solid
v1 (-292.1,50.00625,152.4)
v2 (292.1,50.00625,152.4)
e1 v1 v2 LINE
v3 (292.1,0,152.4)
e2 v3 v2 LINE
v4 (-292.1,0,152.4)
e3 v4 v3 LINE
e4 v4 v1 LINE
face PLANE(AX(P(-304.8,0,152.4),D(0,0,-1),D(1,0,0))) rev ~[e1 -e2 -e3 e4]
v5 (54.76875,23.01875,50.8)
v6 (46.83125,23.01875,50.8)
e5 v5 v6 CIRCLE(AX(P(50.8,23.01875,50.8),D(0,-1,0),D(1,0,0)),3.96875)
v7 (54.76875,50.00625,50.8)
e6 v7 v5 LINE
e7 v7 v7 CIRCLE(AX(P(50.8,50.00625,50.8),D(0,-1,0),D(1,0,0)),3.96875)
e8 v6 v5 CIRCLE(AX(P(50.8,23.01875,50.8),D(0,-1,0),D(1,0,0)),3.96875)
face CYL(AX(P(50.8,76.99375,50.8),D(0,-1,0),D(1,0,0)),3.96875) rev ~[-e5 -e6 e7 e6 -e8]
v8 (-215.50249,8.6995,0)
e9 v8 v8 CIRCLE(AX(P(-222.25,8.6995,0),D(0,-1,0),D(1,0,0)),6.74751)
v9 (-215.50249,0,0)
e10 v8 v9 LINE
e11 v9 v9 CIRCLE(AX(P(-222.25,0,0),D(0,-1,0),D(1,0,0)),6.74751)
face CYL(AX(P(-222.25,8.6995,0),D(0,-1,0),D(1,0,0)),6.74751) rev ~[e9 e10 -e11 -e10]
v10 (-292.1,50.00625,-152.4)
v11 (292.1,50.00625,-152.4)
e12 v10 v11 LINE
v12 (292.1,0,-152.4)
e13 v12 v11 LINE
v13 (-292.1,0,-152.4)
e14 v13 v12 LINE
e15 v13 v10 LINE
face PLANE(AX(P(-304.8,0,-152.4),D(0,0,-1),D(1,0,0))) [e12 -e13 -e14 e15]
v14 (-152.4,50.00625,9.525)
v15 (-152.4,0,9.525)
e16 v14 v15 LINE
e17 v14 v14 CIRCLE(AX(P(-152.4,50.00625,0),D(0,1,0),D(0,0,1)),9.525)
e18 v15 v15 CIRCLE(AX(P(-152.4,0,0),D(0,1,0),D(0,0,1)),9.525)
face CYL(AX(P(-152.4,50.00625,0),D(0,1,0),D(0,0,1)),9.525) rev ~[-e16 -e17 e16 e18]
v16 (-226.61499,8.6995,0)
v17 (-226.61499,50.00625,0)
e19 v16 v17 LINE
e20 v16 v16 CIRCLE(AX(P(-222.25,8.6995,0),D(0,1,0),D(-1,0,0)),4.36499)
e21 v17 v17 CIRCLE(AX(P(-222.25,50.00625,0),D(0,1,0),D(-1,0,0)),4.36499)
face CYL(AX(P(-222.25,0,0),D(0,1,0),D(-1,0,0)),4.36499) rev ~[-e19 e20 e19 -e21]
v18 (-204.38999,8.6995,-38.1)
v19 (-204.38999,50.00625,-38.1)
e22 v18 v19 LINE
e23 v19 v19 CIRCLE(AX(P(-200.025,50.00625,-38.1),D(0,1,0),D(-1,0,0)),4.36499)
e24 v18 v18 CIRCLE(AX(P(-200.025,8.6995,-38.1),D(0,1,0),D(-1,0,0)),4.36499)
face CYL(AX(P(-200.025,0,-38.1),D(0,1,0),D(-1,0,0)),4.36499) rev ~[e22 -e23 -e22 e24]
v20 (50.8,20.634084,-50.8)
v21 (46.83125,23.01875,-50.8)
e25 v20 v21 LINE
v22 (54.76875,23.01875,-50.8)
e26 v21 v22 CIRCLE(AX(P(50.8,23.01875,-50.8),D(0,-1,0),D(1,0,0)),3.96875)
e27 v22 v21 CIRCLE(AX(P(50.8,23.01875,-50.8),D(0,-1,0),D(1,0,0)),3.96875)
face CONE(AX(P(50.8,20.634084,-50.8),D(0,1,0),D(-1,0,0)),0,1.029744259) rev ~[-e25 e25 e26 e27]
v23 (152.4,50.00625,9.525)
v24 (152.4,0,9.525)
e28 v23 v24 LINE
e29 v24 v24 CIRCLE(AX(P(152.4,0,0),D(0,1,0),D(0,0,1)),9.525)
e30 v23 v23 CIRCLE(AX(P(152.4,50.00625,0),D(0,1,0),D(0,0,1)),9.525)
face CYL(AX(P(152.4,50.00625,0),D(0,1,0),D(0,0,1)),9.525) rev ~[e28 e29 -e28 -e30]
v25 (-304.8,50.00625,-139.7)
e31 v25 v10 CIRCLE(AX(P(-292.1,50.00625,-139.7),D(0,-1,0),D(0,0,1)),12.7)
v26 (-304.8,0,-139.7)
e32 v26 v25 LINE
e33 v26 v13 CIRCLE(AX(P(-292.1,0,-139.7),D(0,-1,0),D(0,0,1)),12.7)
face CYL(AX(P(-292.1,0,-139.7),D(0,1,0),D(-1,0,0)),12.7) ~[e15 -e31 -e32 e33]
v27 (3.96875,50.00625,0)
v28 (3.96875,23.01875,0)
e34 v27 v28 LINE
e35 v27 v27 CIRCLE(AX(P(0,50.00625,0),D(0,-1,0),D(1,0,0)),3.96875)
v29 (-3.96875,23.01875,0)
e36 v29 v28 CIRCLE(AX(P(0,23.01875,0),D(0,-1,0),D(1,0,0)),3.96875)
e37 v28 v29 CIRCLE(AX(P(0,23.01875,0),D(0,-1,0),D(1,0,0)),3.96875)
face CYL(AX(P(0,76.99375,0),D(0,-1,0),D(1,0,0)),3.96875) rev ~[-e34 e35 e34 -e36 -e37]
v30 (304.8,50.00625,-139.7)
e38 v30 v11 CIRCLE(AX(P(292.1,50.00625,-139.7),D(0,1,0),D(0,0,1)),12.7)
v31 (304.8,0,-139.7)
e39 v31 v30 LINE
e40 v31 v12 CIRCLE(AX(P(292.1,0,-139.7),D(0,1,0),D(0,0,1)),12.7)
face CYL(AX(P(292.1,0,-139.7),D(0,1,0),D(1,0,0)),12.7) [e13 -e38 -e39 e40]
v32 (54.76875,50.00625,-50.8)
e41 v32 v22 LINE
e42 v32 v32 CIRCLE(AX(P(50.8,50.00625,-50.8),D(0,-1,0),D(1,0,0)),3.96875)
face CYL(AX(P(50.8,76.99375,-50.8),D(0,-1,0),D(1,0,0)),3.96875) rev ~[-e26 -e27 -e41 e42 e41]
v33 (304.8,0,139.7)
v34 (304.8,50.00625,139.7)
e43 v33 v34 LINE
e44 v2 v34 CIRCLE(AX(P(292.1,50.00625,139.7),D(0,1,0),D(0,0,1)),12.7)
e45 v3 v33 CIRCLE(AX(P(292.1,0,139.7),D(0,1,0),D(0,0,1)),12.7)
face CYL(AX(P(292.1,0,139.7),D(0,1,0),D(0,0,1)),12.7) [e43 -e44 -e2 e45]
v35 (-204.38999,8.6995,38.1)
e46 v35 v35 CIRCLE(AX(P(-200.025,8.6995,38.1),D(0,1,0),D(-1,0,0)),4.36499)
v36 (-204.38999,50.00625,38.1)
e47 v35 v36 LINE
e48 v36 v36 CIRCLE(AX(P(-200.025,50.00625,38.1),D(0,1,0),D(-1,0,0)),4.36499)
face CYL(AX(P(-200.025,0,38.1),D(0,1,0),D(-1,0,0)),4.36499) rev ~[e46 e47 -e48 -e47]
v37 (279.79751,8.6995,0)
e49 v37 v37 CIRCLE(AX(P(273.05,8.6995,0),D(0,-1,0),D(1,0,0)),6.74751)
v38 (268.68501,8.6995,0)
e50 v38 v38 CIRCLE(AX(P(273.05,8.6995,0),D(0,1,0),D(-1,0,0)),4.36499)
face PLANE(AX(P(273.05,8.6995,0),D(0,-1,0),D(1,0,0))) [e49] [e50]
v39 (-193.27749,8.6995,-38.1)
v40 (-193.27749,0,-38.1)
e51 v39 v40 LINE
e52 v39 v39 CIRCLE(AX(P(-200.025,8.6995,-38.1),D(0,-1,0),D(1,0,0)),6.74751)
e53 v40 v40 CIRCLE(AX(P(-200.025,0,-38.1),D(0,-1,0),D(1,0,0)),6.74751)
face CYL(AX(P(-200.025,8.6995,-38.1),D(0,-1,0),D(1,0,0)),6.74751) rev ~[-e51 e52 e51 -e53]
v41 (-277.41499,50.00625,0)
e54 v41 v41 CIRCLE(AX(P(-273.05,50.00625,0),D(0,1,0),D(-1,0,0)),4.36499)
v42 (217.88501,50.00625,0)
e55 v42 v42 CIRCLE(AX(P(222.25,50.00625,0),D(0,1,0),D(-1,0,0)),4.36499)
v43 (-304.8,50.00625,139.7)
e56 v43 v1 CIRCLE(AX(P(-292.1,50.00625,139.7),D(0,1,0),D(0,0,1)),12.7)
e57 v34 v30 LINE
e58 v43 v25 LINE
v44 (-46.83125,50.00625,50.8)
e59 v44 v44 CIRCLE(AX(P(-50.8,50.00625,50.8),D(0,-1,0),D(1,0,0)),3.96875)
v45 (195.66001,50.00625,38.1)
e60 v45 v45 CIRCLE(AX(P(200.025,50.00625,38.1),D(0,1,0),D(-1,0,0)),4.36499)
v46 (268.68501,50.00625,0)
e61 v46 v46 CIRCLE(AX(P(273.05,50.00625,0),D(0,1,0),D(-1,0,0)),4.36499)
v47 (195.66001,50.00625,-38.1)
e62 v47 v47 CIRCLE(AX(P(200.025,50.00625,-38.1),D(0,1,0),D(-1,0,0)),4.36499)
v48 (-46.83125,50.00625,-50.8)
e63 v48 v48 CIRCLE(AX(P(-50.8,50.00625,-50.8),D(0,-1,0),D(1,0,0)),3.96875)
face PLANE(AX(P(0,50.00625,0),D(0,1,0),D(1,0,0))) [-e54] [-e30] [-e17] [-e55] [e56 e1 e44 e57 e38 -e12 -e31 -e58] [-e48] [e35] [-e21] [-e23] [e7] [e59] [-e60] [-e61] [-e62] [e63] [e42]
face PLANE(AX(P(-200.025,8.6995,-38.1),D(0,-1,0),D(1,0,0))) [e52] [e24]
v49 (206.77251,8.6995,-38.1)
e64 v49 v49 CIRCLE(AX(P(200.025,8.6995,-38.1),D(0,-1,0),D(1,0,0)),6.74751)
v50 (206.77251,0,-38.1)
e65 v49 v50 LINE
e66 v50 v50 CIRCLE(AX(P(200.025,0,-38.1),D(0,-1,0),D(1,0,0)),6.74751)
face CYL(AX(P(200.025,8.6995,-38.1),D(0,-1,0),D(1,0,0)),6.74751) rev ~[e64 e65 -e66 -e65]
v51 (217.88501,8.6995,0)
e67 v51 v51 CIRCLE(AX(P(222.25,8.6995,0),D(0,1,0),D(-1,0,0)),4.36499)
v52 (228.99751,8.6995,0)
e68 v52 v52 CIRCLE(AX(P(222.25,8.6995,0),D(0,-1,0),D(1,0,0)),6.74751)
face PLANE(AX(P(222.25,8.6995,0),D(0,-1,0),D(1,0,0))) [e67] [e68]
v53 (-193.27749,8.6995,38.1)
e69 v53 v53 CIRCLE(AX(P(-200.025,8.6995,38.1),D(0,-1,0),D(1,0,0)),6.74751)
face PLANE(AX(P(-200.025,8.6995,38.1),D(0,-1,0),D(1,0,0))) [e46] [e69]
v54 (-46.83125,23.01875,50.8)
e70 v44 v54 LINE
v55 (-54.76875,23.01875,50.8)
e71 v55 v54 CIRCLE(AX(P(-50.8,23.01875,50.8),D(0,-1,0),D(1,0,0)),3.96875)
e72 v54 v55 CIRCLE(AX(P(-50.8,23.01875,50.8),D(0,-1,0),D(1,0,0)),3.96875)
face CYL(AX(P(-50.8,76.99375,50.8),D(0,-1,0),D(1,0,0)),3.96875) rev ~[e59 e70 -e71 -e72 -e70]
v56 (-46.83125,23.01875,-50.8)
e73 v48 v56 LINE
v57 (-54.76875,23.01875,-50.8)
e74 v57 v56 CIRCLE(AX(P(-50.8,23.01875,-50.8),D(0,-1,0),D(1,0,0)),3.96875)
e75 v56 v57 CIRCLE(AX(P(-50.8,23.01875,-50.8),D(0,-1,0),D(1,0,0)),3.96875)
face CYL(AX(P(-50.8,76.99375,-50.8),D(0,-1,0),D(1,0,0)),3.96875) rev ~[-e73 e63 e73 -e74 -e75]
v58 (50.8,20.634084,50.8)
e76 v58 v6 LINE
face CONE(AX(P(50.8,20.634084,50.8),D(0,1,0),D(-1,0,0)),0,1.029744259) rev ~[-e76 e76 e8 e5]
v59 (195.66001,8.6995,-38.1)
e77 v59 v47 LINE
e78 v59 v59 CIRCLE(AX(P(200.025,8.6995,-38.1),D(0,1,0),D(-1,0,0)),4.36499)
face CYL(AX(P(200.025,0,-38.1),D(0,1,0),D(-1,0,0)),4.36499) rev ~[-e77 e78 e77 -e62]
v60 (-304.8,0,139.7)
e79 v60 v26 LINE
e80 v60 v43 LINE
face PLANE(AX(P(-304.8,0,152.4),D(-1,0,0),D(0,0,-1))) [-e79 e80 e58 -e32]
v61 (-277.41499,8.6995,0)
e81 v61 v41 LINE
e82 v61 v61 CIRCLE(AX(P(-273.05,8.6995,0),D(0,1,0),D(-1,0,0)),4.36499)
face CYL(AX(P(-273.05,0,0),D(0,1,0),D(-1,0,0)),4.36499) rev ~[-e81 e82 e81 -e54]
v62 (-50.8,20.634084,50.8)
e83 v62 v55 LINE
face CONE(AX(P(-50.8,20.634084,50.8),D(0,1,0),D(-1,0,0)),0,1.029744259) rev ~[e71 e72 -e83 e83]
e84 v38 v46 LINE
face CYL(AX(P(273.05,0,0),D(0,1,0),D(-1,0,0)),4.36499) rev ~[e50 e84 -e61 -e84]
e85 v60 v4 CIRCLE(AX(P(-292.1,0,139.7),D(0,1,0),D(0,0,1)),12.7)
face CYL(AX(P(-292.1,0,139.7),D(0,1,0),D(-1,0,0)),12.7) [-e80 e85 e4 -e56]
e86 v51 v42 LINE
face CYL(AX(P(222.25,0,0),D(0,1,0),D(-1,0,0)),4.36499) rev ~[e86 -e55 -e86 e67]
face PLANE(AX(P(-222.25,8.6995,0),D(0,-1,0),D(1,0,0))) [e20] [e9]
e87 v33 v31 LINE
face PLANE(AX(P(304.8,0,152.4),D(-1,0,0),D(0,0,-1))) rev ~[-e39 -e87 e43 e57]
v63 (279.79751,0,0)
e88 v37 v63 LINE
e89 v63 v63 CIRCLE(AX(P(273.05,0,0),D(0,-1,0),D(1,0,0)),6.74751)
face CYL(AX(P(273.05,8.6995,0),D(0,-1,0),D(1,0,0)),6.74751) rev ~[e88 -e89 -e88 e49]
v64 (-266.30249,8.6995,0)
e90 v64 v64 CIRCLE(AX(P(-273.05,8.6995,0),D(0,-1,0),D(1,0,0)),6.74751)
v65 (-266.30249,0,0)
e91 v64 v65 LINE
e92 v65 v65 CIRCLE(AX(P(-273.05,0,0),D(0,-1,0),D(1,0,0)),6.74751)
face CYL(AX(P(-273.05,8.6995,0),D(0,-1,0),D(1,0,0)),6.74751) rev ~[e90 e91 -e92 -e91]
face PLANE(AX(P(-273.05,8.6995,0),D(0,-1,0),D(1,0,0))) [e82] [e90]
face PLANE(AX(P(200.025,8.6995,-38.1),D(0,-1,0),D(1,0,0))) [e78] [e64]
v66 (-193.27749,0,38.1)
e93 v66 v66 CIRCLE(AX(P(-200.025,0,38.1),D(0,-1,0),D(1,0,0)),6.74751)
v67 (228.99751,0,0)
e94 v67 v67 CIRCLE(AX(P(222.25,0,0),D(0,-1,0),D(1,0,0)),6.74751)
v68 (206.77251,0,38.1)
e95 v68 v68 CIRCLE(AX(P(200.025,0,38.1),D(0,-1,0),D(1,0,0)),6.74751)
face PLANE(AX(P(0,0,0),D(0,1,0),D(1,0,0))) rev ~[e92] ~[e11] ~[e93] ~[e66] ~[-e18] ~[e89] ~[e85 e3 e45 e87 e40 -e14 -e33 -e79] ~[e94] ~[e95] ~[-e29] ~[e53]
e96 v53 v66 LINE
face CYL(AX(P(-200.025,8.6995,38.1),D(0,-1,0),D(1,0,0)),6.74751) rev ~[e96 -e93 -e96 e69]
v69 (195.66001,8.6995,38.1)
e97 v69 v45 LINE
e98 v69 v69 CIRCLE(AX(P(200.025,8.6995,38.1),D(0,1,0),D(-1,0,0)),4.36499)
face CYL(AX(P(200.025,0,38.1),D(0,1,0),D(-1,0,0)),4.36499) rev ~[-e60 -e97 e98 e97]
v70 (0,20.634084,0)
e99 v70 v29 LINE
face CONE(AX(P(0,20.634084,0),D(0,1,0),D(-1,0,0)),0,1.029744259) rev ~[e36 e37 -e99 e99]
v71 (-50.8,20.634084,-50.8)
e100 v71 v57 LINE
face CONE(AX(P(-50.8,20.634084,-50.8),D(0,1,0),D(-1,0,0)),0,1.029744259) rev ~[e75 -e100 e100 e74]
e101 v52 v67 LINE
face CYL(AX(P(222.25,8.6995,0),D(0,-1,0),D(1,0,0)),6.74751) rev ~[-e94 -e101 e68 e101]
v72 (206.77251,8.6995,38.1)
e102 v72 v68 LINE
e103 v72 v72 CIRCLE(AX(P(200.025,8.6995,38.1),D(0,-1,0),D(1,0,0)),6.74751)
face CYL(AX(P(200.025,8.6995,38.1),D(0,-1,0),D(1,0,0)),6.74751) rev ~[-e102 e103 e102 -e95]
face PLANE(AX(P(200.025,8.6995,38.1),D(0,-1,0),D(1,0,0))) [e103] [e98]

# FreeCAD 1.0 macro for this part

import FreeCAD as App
import Part
import Sketcher
from FreeCAD import Vector
Q = App.Units.Quantity


def edges_at(feature, points):
    """Names of the edges that pass closest to the given points."""
    edges = feature.Shape.Edges
    near = lambda p: min(range(len(edges)), key=lambda i: edges[i].distToShape(Part.Vertex(*p))[0])
    return sorted({f"Edge{near(p) + 1}" for p in points})

doc = App.newDocument("Part")
body = doc.addObject("PartDesign::Body", "Body")

sketch1 = doc.addObject("Sketcher::SketchObject", "Sketch")
body.addObject(sketch1)
sketch1.AttachmentSupport = (doc.XZ_Plane, [""])
sketch1.MapMode = "FlatFace"
sketch1.addGeometry(Part.LineSegment(Vector(-305, -152, 0), Vector(-305, 152, 0)), False)
sketch1.addGeometry(Part.LineSegment(Vector(-305, 152, 0), Vector(305, 152, 0)), False)
sketch1.addGeometry(Part.LineSegment(Vector(305, 152, 0), Vector(305, -152, 0)), False)
sketch1.addGeometry(Part.LineSegment(Vector(305, -152, 0), Vector(-305, -152, 0)), False)
sketch1.addConstraint(Sketcher.Constraint("Coincident", 0, 2, 1, 1))
sketch1.addConstraint(Sketcher.Constraint("Coincident", 1, 2, 2, 1))
sketch1.addConstraint(Sketcher.Constraint("Coincident", 2, 2, 3, 1))
sketch1.addConstraint(Sketcher.Constraint("Coincident", 3, 2, 0, 1))
sketch1.addConstraint(Sketcher.Constraint("Vertical", 0))
sketch1.addConstraint(Sketcher.Constraint("Horizontal", 1))
sketch1.addConstraint(Sketcher.Constraint("Vertical", 2))
sketch1.addConstraint(Sketcher.Constraint("Horizontal", 3))
sketch1.addConstraint(Sketcher.Constraint("Symmetric", 0, 2, 2, 2, -1, 1))
sketch1.addConstraint(Sketcher.Constraint("DistanceX", 1, 1, 1, 2, Q("24 in")))
sketch1.addConstraint(Sketcher.Constraint("DistanceY", 0, 1, 0, 2, Q("12 in")))
pad1 = doc.addObject("PartDesign::Pad", "Pad")
body.addObject(pad1)
pad1.Profile = sketch1
pad1.Length = Q("1.96875 in")
pad1.Reversed = True
doc.recompute()

fillet = doc.addObject("PartDesign::Fillet", "Fillet")
body.addObject(fillet)
fillet.Base = (pad1, edges_at(pad1, [
    (-304.8, 25.003, -152.4),
    (304.8, 25.003, -152.4),
    (304.8, 25.003, 152.4),
    (-304.8, 25.003, 152.4),
]))
fillet.Radius = Q("0.5 in")

sketch2 = doc.addObject("Sketcher::SketchObject", "Sketch001")
body.addObject(sketch2)
sketch2.AttachmentSupport = (doc.XZ_Plane, [""])
sketch2.MapMode = "FlatFace"
sketch2.AttachmentOffset = App.Placement(Vector(0, 0, -1.96875 * 25.4), App.Rotation())
sketch2.addGeometry(Part.Circle(Vector(-152, 0, 0), Vector(0, 0, 1), 10), False)
sketch2.addGeometry(Part.Circle(Vector(152, 0, 0), Vector(0, 0, 1), 10), False)
sketch2.addConstraint(Sketcher.Constraint("Equal", 0, 1))
sketch2.addConstraint(Sketcher.Constraint("Symmetric", 0, 3, 1, 3, -1, 1))
sketch2.addConstraint(Sketcher.Constraint("PointOnObject", 0, 3, -1))
sketch2.addConstraint(Sketcher.Constraint("Diameter", 0, Q("0.75 in")))
sketch2.addConstraint(Sketcher.Constraint("DistanceX", 0, 3, -1, 1, Q("6 in")))
pocket1 = doc.addObject("PartDesign::Pocket", "Pocket")
body.addObject(pocket1)
pocket1.Profile = sketch2
pocket1.Type = "ThroughAll"
pocket1.Reversed = True

sketch3 = doc.addObject("Sketcher::SketchObject", "Sketch002")
body.addObject(sketch3)
sketch3.AttachmentSupport = (doc.XZ_Plane, [""])
sketch3.MapMode = "FlatFace"
sketch3.addGeometry(Part.Circle(Vector(-200, 38.1, 0), Vector(0, 0, 1), 4.4), False)
sketch3.addGeometry(Part.Circle(Vector(-200, -38.1, 0), Vector(0, 0, 1), 4.4), False)
sketch3.addGeometry(Part.Circle(Vector(200, -38.1, 0), Vector(0, 0, 1), 4.4), False)
sketch3.addGeometry(Part.Circle(Vector(200, 38.1, 0), Vector(0, 0, 1), 4.4), False)
sketch3.addGeometry(Part.Circle(Vector(-222.2, 0, 0), Vector(0, 0, 1), 4.4), False)
sketch3.addGeometry(Part.Circle(Vector(-273.1, 0, 0), Vector(0, 0, 1), 4.4), False)
sketch3.addGeometry(Part.Circle(Vector(222.2, 0, 0), Vector(0, 0, 1), 4.4), False)
sketch3.addGeometry(Part.Circle(Vector(273.1, 0, 0), Vector(0, 0, 1), 4.4), False)
sketch3.addConstraint(Sketcher.Constraint("Equal", 0, 1))
sketch3.addConstraint(Sketcher.Constraint("Equal", 1, 2))
sketch3.addConstraint(Sketcher.Constraint("Equal", 2, 3))
sketch3.addConstraint(Sketcher.Constraint("Equal", 3, 4))
sketch3.addConstraint(Sketcher.Constraint("Equal", 4, 5))
sketch3.addConstraint(Sketcher.Constraint("Equal", 5, 6))
sketch3.addConstraint(Sketcher.Constraint("Equal", 6, 7))
sketch3.addConstraint(Sketcher.Constraint("Symmetric", 0, 3, 2, 3, -1, 1))
sketch3.addConstraint(Sketcher.Constraint("Symmetric", 1, 3, 3, 3, -1, 1))
sketch3.addConstraint(Sketcher.Constraint("Symmetric", 4, 3, 6, 3, -1, 1))
sketch3.addConstraint(Sketcher.Constraint("Symmetric", 5, 3, 7, 3, -1, 1))
sketch3.addConstraint(Sketcher.Constraint("Symmetric", 1, 3, 2, 3, -2))
sketch3.addConstraint(Sketcher.Constraint("PointOnObject", 4, 3, -1))
sketch3.addConstraint(Sketcher.Constraint("PointOnObject", 5, 3, -1))
sketch3.addConstraint(Sketcher.Constraint("DistanceY", 1, 3, 0, 3, Q("3 in")))
sketch3.addConstraint(Sketcher.Constraint("DistanceX", 5, 3, 4, 3, Q("2 in")))
sketch3.addConstraint(Sketcher.Constraint("Diameter", 0, Q("0.3437 in")))
sketch3.addConstraint(Sketcher.Constraint("DistanceX", 4, 3, 6, 3, Q("17.5 in")))
sketch3.addConstraint(Sketcher.Constraint("DistanceX", 1, 3, 2, 3, Q("15.75 in")))
doc.recompute()
hole = doc.addObject("PartDesign::Hole", "Hole")
body.addObject(hole)
hole.Profile = sketch3
hole.ThreadType = "None"
hole.Diameter = Q("0.3437 in")
hole.DepthType = "ThroughAll"
hole.HoleCutType = "Counterbore"
hole.HoleCutDiameter = Q("0.5313 in")
hole.HoleCutDepth = Q("0.3425 in")

sketch4 = doc.addObject("Sketcher::SketchObject", "Sketch003")
body.addObject(sketch4)
sketch4.AttachmentSupport = (doc.XZ_Plane, [""])
sketch4.MapMode = "FlatFace"
sketch4.AttachmentOffset = App.Placement(Vector(0, 0, -1.96875 * 25.4), App.Rotation())
sketch4.addGeometry(Part.Circle(Vector(-50.8, 50.8, 0), Vector(0, 0, 1), 4), False)
sketch4.addGeometry(Part.Circle(Vector(-50.8, -50.8, 0), Vector(0, 0, 1), 4), False)
sketch4.addGeometry(Part.Circle(Vector(50.8, -50.8, 0), Vector(0, 0, 1), 4), False)
sketch4.addGeometry(Part.Circle(Vector(50.8, 50.8, 0), Vector(0, 0, 1), 4), False)
sketch4.addGeometry(Part.Circle(Vector(0, 0, 0), Vector(0, 0, 1), 4), False)
sketch4.addConstraint(Sketcher.Constraint("Coincident", 4, 3, -1, 1))
sketch4.addConstraint(Sketcher.Constraint("Equal", 0, 1))
sketch4.addConstraint(Sketcher.Constraint("Equal", 1, 2))
sketch4.addConstraint(Sketcher.Constraint("Equal", 2, 3))
sketch4.addConstraint(Sketcher.Constraint("Equal", 3, 4))
sketch4.addConstraint(Sketcher.Constraint("Symmetric", 0, 3, 2, 3, -1, 1))
sketch4.addConstraint(Sketcher.Constraint("Symmetric", 1, 3, 3, 3, -1, 1))
sketch4.addConstraint(Sketcher.Constraint("Symmetric", 1, 3, 2, 3, -2))
sketch4.addConstraint(Sketcher.Constraint("Diameter", 0, Q("0.3125 in")))
sketch4.addConstraint(Sketcher.Constraint("DistanceX", 0, 3, -1, 1, Q("2 in")))
sketch4.addConstraint(Sketcher.Constraint("DistanceY", -1, 1, 0, 3, Q("2 in")))
doc.recompute()
hole2 = doc.addObject("PartDesign::Hole", "Hole001")
body.addObject(hole2)
hole2.Profile = sketch4
hole2.ThreadType = "None"
hole2.Diameter = Q("0.3125 in")
hole2.DepthType = "Dimension"
hole2.Depth = Q("1.0625 in")
hole2.DrillPoint = "Angled"
hole2.DrillPointAngle = 118
hole2.Reversed = True

doc.recompute()
